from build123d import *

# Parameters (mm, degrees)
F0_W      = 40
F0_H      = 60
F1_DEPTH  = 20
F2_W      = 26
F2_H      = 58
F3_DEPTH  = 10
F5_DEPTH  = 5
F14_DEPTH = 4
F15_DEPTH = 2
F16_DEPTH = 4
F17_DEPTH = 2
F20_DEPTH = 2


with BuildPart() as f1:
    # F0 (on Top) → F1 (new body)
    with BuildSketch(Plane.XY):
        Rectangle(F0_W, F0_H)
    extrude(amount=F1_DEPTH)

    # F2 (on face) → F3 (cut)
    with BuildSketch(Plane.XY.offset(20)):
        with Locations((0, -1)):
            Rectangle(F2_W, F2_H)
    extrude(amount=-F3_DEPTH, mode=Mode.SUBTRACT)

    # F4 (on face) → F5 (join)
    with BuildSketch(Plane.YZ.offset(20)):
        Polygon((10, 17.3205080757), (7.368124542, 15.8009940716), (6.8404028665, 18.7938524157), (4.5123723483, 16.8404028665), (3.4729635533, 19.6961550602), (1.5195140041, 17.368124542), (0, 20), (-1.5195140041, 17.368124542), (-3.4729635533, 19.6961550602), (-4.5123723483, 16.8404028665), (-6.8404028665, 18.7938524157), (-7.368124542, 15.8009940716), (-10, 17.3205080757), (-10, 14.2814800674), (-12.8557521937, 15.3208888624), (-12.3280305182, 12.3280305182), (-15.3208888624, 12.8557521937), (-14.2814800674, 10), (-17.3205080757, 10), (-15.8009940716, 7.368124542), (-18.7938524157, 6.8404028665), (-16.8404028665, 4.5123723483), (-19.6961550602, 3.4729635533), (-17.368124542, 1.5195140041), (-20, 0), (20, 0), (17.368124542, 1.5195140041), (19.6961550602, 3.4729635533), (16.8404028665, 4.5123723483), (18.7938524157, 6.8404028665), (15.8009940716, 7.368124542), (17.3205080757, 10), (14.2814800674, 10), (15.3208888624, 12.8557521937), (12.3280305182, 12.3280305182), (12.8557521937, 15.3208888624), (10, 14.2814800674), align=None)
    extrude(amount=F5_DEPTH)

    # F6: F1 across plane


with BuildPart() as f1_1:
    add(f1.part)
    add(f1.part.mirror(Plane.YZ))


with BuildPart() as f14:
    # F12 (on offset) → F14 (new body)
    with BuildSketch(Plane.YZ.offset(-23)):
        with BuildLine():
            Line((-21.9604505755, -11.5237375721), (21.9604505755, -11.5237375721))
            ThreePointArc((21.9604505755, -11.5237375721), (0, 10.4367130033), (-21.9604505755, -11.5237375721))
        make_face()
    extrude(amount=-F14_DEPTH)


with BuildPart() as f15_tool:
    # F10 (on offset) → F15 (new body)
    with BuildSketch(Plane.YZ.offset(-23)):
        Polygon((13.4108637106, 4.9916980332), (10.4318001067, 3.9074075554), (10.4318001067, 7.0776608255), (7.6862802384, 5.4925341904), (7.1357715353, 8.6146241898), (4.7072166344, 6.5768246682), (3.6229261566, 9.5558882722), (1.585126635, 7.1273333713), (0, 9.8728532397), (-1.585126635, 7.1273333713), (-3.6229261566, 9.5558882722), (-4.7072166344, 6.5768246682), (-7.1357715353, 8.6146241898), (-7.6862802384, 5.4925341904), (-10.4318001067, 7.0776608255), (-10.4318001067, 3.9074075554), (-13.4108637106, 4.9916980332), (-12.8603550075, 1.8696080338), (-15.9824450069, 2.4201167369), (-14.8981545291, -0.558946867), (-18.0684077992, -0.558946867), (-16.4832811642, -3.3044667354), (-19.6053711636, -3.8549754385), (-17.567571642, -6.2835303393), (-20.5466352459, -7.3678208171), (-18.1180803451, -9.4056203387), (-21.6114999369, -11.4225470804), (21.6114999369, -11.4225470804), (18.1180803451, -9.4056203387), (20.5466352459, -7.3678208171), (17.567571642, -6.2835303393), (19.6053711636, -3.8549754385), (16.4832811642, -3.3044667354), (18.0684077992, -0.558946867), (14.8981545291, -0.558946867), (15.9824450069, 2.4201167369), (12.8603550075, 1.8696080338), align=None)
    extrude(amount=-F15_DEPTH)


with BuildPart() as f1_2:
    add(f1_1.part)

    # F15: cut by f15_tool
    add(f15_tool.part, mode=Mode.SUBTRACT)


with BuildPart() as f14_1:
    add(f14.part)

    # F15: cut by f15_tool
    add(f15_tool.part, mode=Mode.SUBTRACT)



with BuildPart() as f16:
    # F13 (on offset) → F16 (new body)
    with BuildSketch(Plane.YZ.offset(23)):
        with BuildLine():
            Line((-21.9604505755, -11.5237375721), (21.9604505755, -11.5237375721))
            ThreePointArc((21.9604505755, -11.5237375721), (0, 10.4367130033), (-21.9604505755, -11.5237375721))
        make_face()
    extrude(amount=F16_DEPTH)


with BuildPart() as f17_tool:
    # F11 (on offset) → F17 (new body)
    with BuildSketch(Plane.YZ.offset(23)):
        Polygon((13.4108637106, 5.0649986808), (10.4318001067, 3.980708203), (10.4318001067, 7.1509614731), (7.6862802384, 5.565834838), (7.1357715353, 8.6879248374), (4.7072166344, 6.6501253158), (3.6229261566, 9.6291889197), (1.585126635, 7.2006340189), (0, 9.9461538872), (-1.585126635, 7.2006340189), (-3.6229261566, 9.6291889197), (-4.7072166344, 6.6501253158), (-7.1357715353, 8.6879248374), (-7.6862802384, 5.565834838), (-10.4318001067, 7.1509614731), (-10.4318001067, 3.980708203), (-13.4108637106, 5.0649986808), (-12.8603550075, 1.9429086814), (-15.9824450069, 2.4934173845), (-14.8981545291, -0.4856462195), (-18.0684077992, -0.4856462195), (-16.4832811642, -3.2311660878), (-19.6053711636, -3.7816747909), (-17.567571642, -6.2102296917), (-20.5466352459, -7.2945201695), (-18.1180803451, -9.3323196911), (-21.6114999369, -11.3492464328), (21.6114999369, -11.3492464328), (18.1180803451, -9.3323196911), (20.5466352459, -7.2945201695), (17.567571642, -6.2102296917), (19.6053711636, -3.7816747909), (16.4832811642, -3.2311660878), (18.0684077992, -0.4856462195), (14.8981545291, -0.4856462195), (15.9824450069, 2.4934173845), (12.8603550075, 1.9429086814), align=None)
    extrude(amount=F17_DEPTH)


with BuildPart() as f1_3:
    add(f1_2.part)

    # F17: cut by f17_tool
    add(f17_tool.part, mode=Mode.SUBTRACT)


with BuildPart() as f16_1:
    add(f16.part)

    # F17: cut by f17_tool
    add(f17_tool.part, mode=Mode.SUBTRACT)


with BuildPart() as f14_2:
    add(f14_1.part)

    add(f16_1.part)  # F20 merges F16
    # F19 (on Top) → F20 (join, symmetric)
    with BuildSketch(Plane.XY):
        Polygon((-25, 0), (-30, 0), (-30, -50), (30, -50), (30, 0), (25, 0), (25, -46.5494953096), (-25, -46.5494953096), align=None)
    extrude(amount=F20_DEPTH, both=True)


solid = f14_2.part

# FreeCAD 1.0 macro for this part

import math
import FreeCAD as App
import Part
import Sketcher
Q = App.Units.Quantity

doc = App.newDocument("Part")
params = doc.addObject("Spreadsheet::Sheet", "Params")
for row, (alias, value) in enumerate([
    ("sketch1_width", "40 mm"),
    ("sketch1_height", "60 mm"),
    ("pad1_length", "20 mm"),
    ("sketch2_width", "26 mm"),
    ("sketch2_height", "58 mm"),
    ("pocket1_length", "10 mm"),
    ("sketch3_width", "40 mm"),
    ("pad2_length", "5 mm"),
    ("pad3_length", "4 mm"),
    ("pad4_length", "2 mm"),
    ("pad5_length", "4 mm"),
    ("pad6_length", "2 mm"),
    ("sketch8_width", "5 mm"),
    ("sketch8_width2", "60 mm"),
    ("pad7_length", "4 mm"),
], start=1):
    params.set(f"A{row}", alias)
    params.set(f"B{row}", "=" + value)
    params.setAlias(f"B{row}", alias)

body = doc.addObject("PartDesign::Body", "Body")

# Sketch on XY plane
sketch1 = body.newObject("Sketcher::SketchObject", "Sketch")
sketch1.AttachmentSupport = (doc.getObject("XY_Plane"), [""])
sketch1.MapMode = "FlatFace"
sketch1.addGeometry([
    Part.LineSegment(App.Vector(-20, 30, 0), App.Vector(-20, -30, 0)),
    Part.LineSegment(App.Vector(-20, -30, 0), App.Vector(20, -30, 0)),
    Part.LineSegment(App.Vector(20, -30, 0), App.Vector(20, 30, 0)),
    Part.LineSegment(App.Vector(20, 30, 0), App.Vector(-20, 30, 0)),
], False)
sketch1.addConstraint([
    Sketcher.Constraint("Coincident", 0, 2, 1, 1),
    Sketcher.Constraint("Coincident", 1, 2, 2, 1),
    Sketcher.Constraint("Coincident", 2, 2, 3, 1),
    Sketcher.Constraint("Coincident", 3, 2, 0, 1),
    Sketcher.Constraint("Vertical", 0),
    Sketcher.Constraint("Horizontal", 1),
    Sketcher.Constraint("Vertical", 2),
    Sketcher.Constraint("Horizontal", 3),
    Sketcher.Constraint("Symmetric", 0, 2, 2, 2, -1, 1),
    Sketcher.Constraint("DistanceX", 1, 1, 1, 2, Q("40 mm")),
    Sketcher.Constraint("DistanceY", 0, 2, 0, 1, Q("60 mm")),
])
sketch1.setExpression("Constraints[9]", "Params.sketch1_width")
sketch1.setExpression("Constraints[10]", "Params.sketch1_height")
pad1 = body.newObject("PartDesign::Pad", "Pad")
pad1.Profile = sketch1
pad1.setExpression("Length", "Params.pad1_length")

# Sketch on XY plane
sketch2 = body.newObject("Sketcher::SketchObject", "Sketch001")
sketch2.AttachmentSupport = (doc.getObject("XY_Plane"), [""])
sketch2.MapMode = "FlatFace"
sketch2.AttachmentOffset = App.Placement(App.Vector(0, 0, 20), App.Rotation())
sketch2.addGeometry([
    Part.LineSegment(App.Vector(-13, 28, 0), App.Vector(-13, -30, 0)),
    Part.LineSegment(App.Vector(-13, -30, 0), App.Vector(13, -30, 0)),
    Part.LineSegment(App.Vector(13, -30, 0), App.Vector(13, 28, 0)),
    Part.LineSegment(App.Vector(13, 28, 0), App.Vector(-13, 28, 0)),
], False)
sketch2.addConstraint([
    Sketcher.Constraint("Coincident", 0, 2, 1, 1),
    Sketcher.Constraint("Coincident", 1, 2, 2, 1),
    Sketcher.Constraint("Coincident", 2, 2, 3, 1),
    Sketcher.Constraint("Coincident", 3, 2, 0, 1),
    Sketcher.Constraint("Vertical", 0),
    Sketcher.Constraint("Horizontal", 1),
    Sketcher.Constraint("Vertical", 2),
    Sketcher.Constraint("Horizontal", 3),
    Sketcher.Constraint("DistanceX", 1, 1, 1, 2, Q("26 mm")),
    Sketcher.Constraint("DistanceY", 0, 2, 0, 1, Q("58 mm")),
    Sketcher.Constraint("DistanceX", 0, 2, -1, 1, Q("13 mm")),
    Sketcher.Constraint("DistanceY", 0, 2, -1, 1, Q("30 mm")),
])
sketch2.setExpression("Constraints[8]", "Params.sketch2_width")
sketch2.setExpression("Constraints[9]", "Params.sketch2_height")
pocket1 = body.newObject("PartDesign::Pocket", "Pocket")
pocket1.Profile = sketch2
pocket1.setExpression("Length", "Params.pocket1_length")

# Sketch on YZ plane
sketch3 = body.newObject("Sketcher::SketchObject", "Sketch002")
sketch3.AttachmentSupport = (doc.getObject("YZ_Plane"), [""])
sketch3.MapMode = "FlatFace"
sketch3.AttachmentOffset = App.Placement(App.Vector(0, 0, 20), App.Rotation())
sketch3.addGeometry([
    Part.LineSegment(App.Vector(10, 17.320508, 0), App.Vector(7.368125, 15.800994, 0)),  # 0
    Part.LineSegment(App.Vector(7.368125, 15.800994, 0), App.Vector(6.840403, 18.793852, 0)),  # 1
    Part.LineSegment(App.Vector(6.840403, 18.793852, 0), App.Vector(4.512372, 16.840403, 0)),  # 2
    Part.LineSegment(App.Vector(4.512372, 16.840403, 0), App.Vector(3.472964, 19.696155, 0)),  # 3
    Part.LineSegment(App.Vector(3.472964, 19.696155, 0), App.Vector(1.519514, 17.368125, 0)),  # 4
    Part.LineSegment(App.Vector(1.519514, 17.368125, 0), App.Vector(0, 20, 0)),  # 5
    Part.LineSegment(App.Vector(0, 20, 0), App.Vector(-1.519514, 17.368125, 0)),  # 6
    Part.LineSegment(App.Vector(-1.519514, 17.368125, 0), App.Vector(-3.472964, 19.696155, 0)),  # 7
    Part.LineSegment(App.Vector(-3.472964, 19.696155, 0), App.Vector(-4.512372, 16.840403, 0)),  # 8
    Part.LineSegment(App.Vector(-4.512372, 16.840403, 0), App.Vector(-6.840403, 18.793852, 0)),  # 9
    Part.LineSegment(App.Vector(-6.840403, 18.793852, 0), App.Vector(-7.368125, 15.800994, 0)),  # 10
    Part.LineSegment(App.Vector(-7.368125, 15.800994, 0), App.Vector(-10, 17.320508, 0)),  # 11
    Part.LineSegment(App.Vector(-10, 17.320508, 0), App.Vector(-10, 14.28148, 0)),  # 12
    Part.LineSegment(App.Vector(-10, 14.28148, 0), App.Vector(-12.855752, 15.320889, 0)),  # 13
    Part.LineSegment(App.Vector(-12.855752, 15.320889, 0), App.Vector(-12.328031, 12.328031, 0)),  # 14
    Part.LineSegment(App.Vector(-12.328031, 12.328031, 0), App.Vector(-15.320889, 12.855752, 0)),  # 15
    Part.LineSegment(App.Vector(-15.320889, 12.855752, 0), App.Vector(-14.28148, 10, 0)),  # 16
    Part.LineSegment(App.Vector(-14.28148, 10, 0), App.Vector(-17.320508, 10, 0)),  # 17
    Part.LineSegment(App.Vector(-17.320508, 10, 0), App.Vector(-15.800994, 7.368125, 0)),  # 18
    Part.LineSegment(App.Vector(-15.800994, 7.368125, 0), App.Vector(-18.793852, 6.840403, 0)),  # 19
    Part.LineSegment(App.Vector(-18.793852, 6.840403, 0), App.Vector(-16.840403, 4.512372, 0)),  # 20
    Part.LineSegment(App.Vector(-16.840403, 4.512372, 0), App.Vector(-19.696155, 3.472964, 0)),  # 21
    Part.LineSegment(App.Vector(-19.696155, 3.472964, 0), App.Vector(-17.368125, 1.519514, 0)),  # 22
    Part.LineSegment(App.Vector(-17.368125, 1.519514, 0), App.Vector(-20, 0, 0)),  # 23
    Part.LineSegment(App.Vector(-20, 0, 0), App.Vector(20, 0, 0)),  # 24
    Part.LineSegment(App.Vector(20, 0, 0), App.Vector(17.368125, 1.519514, 0)),  # 25
    Part.LineSegment(App.Vector(17.368125, 1.519514, 0), App.Vector(19.696155, 3.472964, 0)),  # 26
    Part.LineSegment(App.Vector(19.696155, 3.472964, 0), App.Vector(16.840403, 4.512372, 0)),  # 27
    Part.LineSegment(App.Vector(16.840403, 4.512372, 0), App.Vector(18.793852, 6.840403, 0)),  # 28
    Part.LineSegment(App.Vector(18.793852, 6.840403, 0), App.Vector(15.800994, 7.368125, 0)),  # 29
    Part.LineSegment(App.Vector(15.800994, 7.368125, 0), App.Vector(17.320508, 10, 0)),  # 30
    Part.LineSegment(App.Vector(17.320508, 10, 0), App.Vector(14.28148, 10, 0)),  # 31
    Part.LineSegment(App.Vector(14.28148, 10, 0), App.Vector(15.320889, 12.855752, 0)),  # 32
    Part.LineSegment(App.Vector(15.320889, 12.855752, 0), App.Vector(12.328031, 12.328031, 0)),  # 33
    Part.LineSegment(App.Vector(12.328031, 12.328031, 0), App.Vector(12.855752, 15.320889, 0)),  # 34
    Part.LineSegment(App.Vector(12.855752, 15.320889, 0), App.Vector(10, 14.28148, 0)),  # 35
    Part.LineSegment(App.Vector(10, 14.28148, 0), App.Vector(10, 17.320508, 0)),  # 36
], False)
sketch3.addConstraint([
    Sketcher.Constraint("Coincident", 0, 2, 1, 1),
    Sketcher.Constraint("Coincident", 1, 2, 2, 1),
    Sketcher.Constraint("Coincident", 2, 2, 3, 1),
    Sketcher.Constraint("Coincident", 3, 2, 4, 1),
    Sketcher.Constraint("Coincident", 4, 2, 5, 1),
    Sketcher.Constraint("Coincident", 5, 2, 6, 1),
    Sketcher.Constraint("Coincident", 6, 2, 7, 1),
    Sketcher.Constraint("Coincident", 7, 2, 8, 1),
    Sketcher.Constraint("Coincident", 8, 2, 9, 1),
    Sketcher.Constraint("Coincident", 9, 2, 10, 1),
    Sketcher.Constraint("Coincident", 10, 2, 11, 1),
    Sketcher.Constraint("Coincident", 11, 2, 12, 1),
    Sketcher.Constraint("Coincident", 12, 2, 13, 1),
    Sketcher.Constraint("Coincident", 13, 2, 14, 1),
    Sketcher.Constraint("Coincident", 14, 2, 15, 1),
    Sketcher.Constraint("Coincident", 15, 2, 16, 1),
    Sketcher.Constraint("Coincident", 16, 2, 17, 1),
    Sketcher.Constraint("Coincident", 17, 2, 18, 1),
    Sketcher.Constraint("Coincident", 18, 2, 19, 1),
    Sketcher.Constraint("Coincident", 19, 2, 20, 1),
    Sketcher.Constraint("Coincident", 20, 2, 21, 1),
    Sketcher.Constraint("Coincident", 21, 2, 22, 1),
    Sketcher.Constraint("Coincident", 22, 2, 23, 1),
    Sketcher.Constraint("Coincident", 23, 2, 24, 1),
    Sketcher.Constraint("Coincident", 24, 2, 25, 1),
    Sketcher.Constraint("Coincident", 25, 2, 26, 1),
    Sketcher.Constraint("Coincident", 26, 2, 27, 1),
    Sketcher.Constraint("Coincident", 27, 2, 28, 1),
    Sketcher.Constraint("Coincident", 28, 2, 29, 1),
    Sketcher.Constraint("Coincident", 29, 2, 30, 1),
    Sketcher.Constraint("Coincident", 30, 2, 31, 1),
    Sketcher.Constraint("Coincident", 31, 2, 32, 1),
    Sketcher.Constraint("Coincident", 32, 2, 33, 1),
    Sketcher.Constraint("Coincident", 33, 2, 34, 1),
    Sketcher.Constraint("Coincident", 34, 2, 35, 1),
    Sketcher.Constraint("Coincident", 35, 2, 36, 1),
    Sketcher.Constraint("Coincident", 36, 2, 0, 1),
    Sketcher.Constraint("Vertical", 12),
    Sketcher.Constraint("Horizontal", 17),
    Sketcher.Constraint("Horizontal", 24),
    Sketcher.Constraint("Horizontal", 31),
    Sketcher.Constraint("Vertical", 36),
    Sketcher.Constraint("Symmetric", 23, 2, 24, 2, -1, 1),
    Sketcher.Constraint("Symmetric", 4, 2, 6, 2, -2),
    Sketcher.Constraint("Symmetric", 3, 2, 7, 2, -2),
    Sketcher.Constraint("Symmetric", 2, 2, 8, 2, -2),
    Sketcher.Constraint("Symmetric", 1, 2, 9, 2, -2),
    Sketcher.Constraint("Symmetric", 0, 2, 10, 2, -2),
    Sketcher.Constraint("Symmetric", 22, 2, 25, 2, -2),
    Sketcher.Constraint("Symmetric", 21, 2, 26, 2, -2),
    Sketcher.Constraint("Symmetric", 20, 2, 27, 2, -2),
    Sketcher.Constraint("Symmetric", 19, 2, 28, 2, -2),
    Sketcher.Constraint("Symmetric", 18, 2, 29, 2, -2),
    Sketcher.Constraint("Symmetric", 17, 2, 30, 2, -2),
    Sketcher.Constraint("Symmetric", 15, 2, 32, 2, -2),
    Sketcher.Constraint("Symmetric", 14, 2, 33, 2, -2),
    Sketcher.Constraint("Symmetric", 13, 2, 34, 2, -2),
    Sketcher.Constraint("Symmetric", 12, 2, 35, 2, -2),
    Sketcher.Constraint("PointOnObject", 5, 2, -2),
    Sketcher.Constraint("Perpendicular", 0, 5),
    Sketcher.Constraint("Perpendicular", 2, 7),
    Sketcher.Constraint("Perpendicular", 6, 11),
    Sketcher.Constraint("Perpendicular", 8, 13),
    Sketcher.Constraint("Parallel", 1, 14),
    Sketcher.Constraint("Perpendicular", 10, 15),
    Sketcher.Constraint("Parallel", 3, 16),
    Sketcher.Constraint("Parallel", 5, 18),
    Sketcher.Constraint("Perpendicular", 14, 19),
    Sketcher.Constraint("Parallel", 7, 20),
    Sketcher.Constraint("Perpendicular", 16, 21),
    Sketcher.Constraint("Parallel", 9, 22),
    Sketcher.Constraint("Perpendicular", 18, 23),
    Sketcher.Constraint("Perpendicular", 27, 32),
    Sketcher.Constraint("Equal", 31, 12),
    Sketcher.Constraint("Equal", 0, 1),
    Sketcher.Constraint("Equal", 1, 2),
    Sketcher.Constraint("Equal", 2, 3),
    Sketcher.Constraint("Equal", 3, 4),
    Sketcher.Constraint("Equal", 4, 5),
    Sketcher.Constraint("Equal", 11, 13),
    Sketcher.Constraint("Equal", 13, 14),
    Sketcher.Constraint("Equal", 14, 15),
    Sketcher.Constraint("Equal", 15, 16),
    Sketcher.Constraint("Equal", 16, 18),
    Sketcher.Constraint("Equal", 18, 19),
    Sketcher.Constraint("Equal", 19, 20),
    Sketcher.Constraint("Equal", 20, 21),
    Sketcher.Constraint("Equal", 21, 22),
    Sketcher.Constraint("Equal", 22, 23),
    Sketcher.Constraint("DistanceX", 24, 1, 24, 2, Q("40 mm")),
    Sketcher.Constraint("Angle", 0, Q("-150 deg")),
    Sketcher.Constraint("Angle", 1, Q("100 deg")),
    Sketcher.Constraint("Angle", 2, Q("-140 deg")),
    Sketcher.Constraint("Angle", 3, Q("110 deg")),
    Sketcher.Constraint("DistanceX", 11, 2, -1, 1, Q("10 mm")),
])
sketch3.setExpression("Constraints[89]", "Params.sketch3_width")
pad2 = body.newObject("PartDesign::Pad", "Pad001")
pad2.Profile = sketch3
pad2.setExpression("Length", "Params.pad2_length")
body2 = doc.addObject("PartDesign::Body", "Body001")
doc.recompute()

body2.BaseFeature = body
doc.recompute()

mirroring = doc.addObject("Part::Mirroring", "Mirroring")
mirroring.Source = body
mirroring.Base = App.Vector(0, 0, 0)
mirroring.Normal = App.Vector(1, 0, 0)
body3 = doc.addObject("PartDesign::Body", "Body002")
body3.BaseFeature = mirroring
boolean = body2.newObject("PartDesign::Boolean", "Boolean")
boolean.Type = "Fuse"
boolean.addObjects([body3])
doc.recompute()
body4 = doc.addObject("PartDesign::Body", "Body003")

# Sketch on YZ plane
sketch4 = body4.newObject("Sketcher::SketchObject", "Sketch003")
sketch4.AttachmentSupport = (doc.getObject("YZ_Plane003"), [""])
sketch4.MapMode = "FlatFace"
sketch4.AttachmentOffset = App.Placement(App.Vector(0, 0, -23), App.Rotation())
sketch4.addGeometry([
    Part.LineSegment(App.Vector(-21.960451, -11.523738, 0), App.Vector(21.960451, -11.523738, 0)),
    Part.ArcOfCircle(Part.Circle(App.Vector(0, -11.523738, 0), App.Vector(0, 0, 1), 21.960451), math.radians(0), math.radians(180)),
], False)
sketch4.addConstraint([
    Sketcher.Constraint("Coincident", 0, 1, 1, 2),
    Sketcher.Constraint("Coincident", 1, 1, 0, 2),
    Sketcher.Constraint("Horizontal", 0),
    Sketcher.Constraint("PointOnObject", 1, 3, -2),
    Sketcher.Constraint("Horizontal", 1, 3, 0, 1),
    Sketcher.Constraint("Radius", 1, Q("21.960451 mm")),
    Sketcher.Constraint("DistanceY", 1, 3, -1, 1, Q("11.523738 mm")),
])
pad3 = body4.newObject("PartDesign::Pad", "Pad002")
pad3.Profile = sketch4
pad3.setExpression("Length", "Params.pad3_length")
pad3.Reversed = True
body5 = doc.addObject("PartDesign::Body", "Body004")

# Sketch on YZ plane
sketch5 = body5.newObject("Sketcher::SketchObject", "Sketch004")
sketch5.AttachmentSupport = (doc.getObject("YZ_Plane004"), [""])
sketch5.MapMode = "FlatFace"
sketch5.AttachmentOffset = App.Placement(App.Vector(0, 0, -23), App.Rotation())
sketch5.addGeometry([
    Part.LineSegment(App.Vector(13.410864, 4.991698, 0), App.Vector(10.4318, 3.907408, 0)),  # 0
    Part.LineSegment(App.Vector(10.4318, 3.907408, 0), App.Vector(10.4318, 7.077661, 0)),  # 1
    Part.LineSegment(App.Vector(10.4318, 7.077661, 0), App.Vector(7.68628, 5.492534, 0)),  # 2
    Part.LineSegment(App.Vector(7.68628, 5.492534, 0), App.Vector(7.135772, 8.614624, 0)),  # 3
    Part.LineSegment(App.Vector(7.135772, 8.614624, 0), App.Vector(4.707217, 6.576825, 0)),  # 4
    Part.LineSegment(App.Vector(4.707217, 6.576825, 0), App.Vector(3.622926, 9.555888, 0)),  # 5
    Part.LineSegment(App.Vector(3.622926, 9.555888, 0), App.Vector(1.585127, 7.127333, 0)),  # 6
    Part.LineSegment(App.Vector(1.585127, 7.127333, 0), App.Vector(0, 9.872853, 0)),  # 7
    Part.LineSegment(App.Vector(0, 9.872853, 0), App.Vector(-1.585127, 7.127333, 0)),  # 8
    Part.LineSegment(App.Vector(-1.585127, 7.127333, 0), App.Vector(-3.622926, 9.555888, 0)),  # 9
    Part.LineSegment(App.Vector(-3.622926, 9.555888, 0), App.Vector(-4.707217, 6.576825, 0)),  # 10
    Part.LineSegment(App.Vector(-4.707217, 6.576825, 0), App.Vector(-7.135772, 8.614624, 0)),  # 11
    Part.LineSegment(App.Vector(-7.135772, 8.614624, 0), App.Vector(-7.68628, 5.492534, 0)),  # 12
    Part.LineSegment(App.Vector(-7.68628, 5.492534, 0), App.Vector(-10.4318, 7.077661, 0)),  # 13
    Part.LineSegment(App.Vector(-10.4318, 7.077661, 0), App.Vector(-10.4318, 3.907408, 0)),  # 14
    Part.LineSegment(App.Vector(-10.4318, 3.907408, 0), App.Vector(-13.410864, 4.991698, 0)),  # 15
    Part.LineSegment(App.Vector(-13.410864, 4.991698, 0), App.Vector(-12.860355, 1.869608, 0)),  # 16
    Part.LineSegment(App.Vector(-12.860355, 1.869608, 0), App.Vector(-15.982445, 2.420117, 0)),  # 17
    Part.LineSegment(App.Vector(-15.982445, 2.420117, 0), App.Vector(-14.898155, -0.558947, 0)),  # 18
    Part.LineSegment(App.Vector(-14.898155, -0.558947, 0), App.Vector(-18.068408, -0.558947, 0)),  # 19
    Part.LineSegment(App.Vector(-18.068408, -0.558947, 0), App.Vector(-16.483281, -3.304467, 0)),  # 20
    Part.LineSegment(App.Vector(-16.483281, -3.304467, 0), App.Vector(-19.605371, -3.854975, 0)),  # 21
    Part.LineSegment(App.Vector(-19.605371, -3.854975, 0), App.Vector(-17.567572, -6.28353, 0)),  # 22
    Part.LineSegment(App.Vector(-17.567572, -6.28353, 0), App.Vector(-20.546635, -7.367821, 0)),  # 23
    Part.LineSegment(App.Vector(-20.546635, -7.367821, 0), App.Vector(-18.11808, -9.40562, 0)),  # 24
    Part.LineSegment(App.Vector(-18.11808, -9.40562, 0), App.Vector(-21.6115, -11.422547, 0)),  # 25
    Part.LineSegment(App.Vector(-21.6115, -11.422547, 0), App.Vector(21.6115, -11.422547, 0)),  # 26
    Part.LineSegment(App.Vector(21.6115, -11.422547, 0), App.Vector(18.11808, -9.40562, 0)),  # 27
    Part.LineSegment(App.Vector(18.11808, -9.40562, 0), App.Vector(20.546635, -7.367821, 0)),  # 28
    Part.LineSegment(App.Vector(20.546635, -7.367821, 0), App.Vector(17.567572, -6.28353, 0)),  # 29
    Part.LineSegment(App.Vector(17.567572, -6.28353, 0), App.Vector(19.605371, -3.854975, 0)),  # 30
    Part.LineSegment(App.Vector(19.605371, -3.854975, 0), App.Vector(16.483281, -3.304467, 0)),  # 31
    Part.LineSegment(App.Vector(16.483281, -3.304467, 0), App.Vector(18.068408, -0.558947, 0)),  # 32
    Part.LineSegment(App.Vector(18.068408, -0.558947, 0), App.Vector(14.898155, -0.558947, 0)),  # 33
    Part.LineSegment(App.Vector(14.898155, -0.558947, 0), App.Vector(15.982445, 2.420117, 0)),  # 34
    Part.LineSegment(App.Vector(15.982445, 2.420117, 0), App.Vector(12.860355, 1.869608, 0)),  # 35
    Part.LineSegment(App.Vector(12.860355, 1.869608, 0), App.Vector(13.410864, 4.991698, 0)),  # 36
], False)
sketch5.addConstraint([
    Sketcher.Constraint("Coincident", 0, 2, 1, 1),
    Sketcher.Constraint("Coincident", 1, 2, 2, 1),
    Sketcher.Constraint("Coincident", 2, 2, 3, 1),
    Sketcher.Constraint("Coincident", 3, 2, 4, 1),
    Sketcher.Constraint("Coincident", 4, 2, 5, 1),
    Sketcher.Constraint("Coincident", 5, 2, 6, 1),
    Sketcher.Constraint("Coincident", 6, 2, 7, 1),
    Sketcher.Constraint("Coincident", 7, 2, 8, 1),
    Sketcher.Constraint("Coincident", 8, 2, 9, 1),
    Sketcher.Constraint("Coincident", 9, 2, 10, 1),
    Sketcher.Constraint("Coincident", 10, 2, 11, 1),
    Sketcher.Constraint("Coincident", 11, 2, 12, 1),
    Sketcher.Constraint("Coincident", 12, 2, 13, 1),
    Sketcher.Constraint("Coincident", 13, 2, 14, 1),
    Sketcher.Constraint("Coincident", 14, 2, 15, 1),
    Sketcher.Constraint("Coincident", 15, 2, 16, 1),
    Sketcher.Constraint("Coincident", 16, 2, 17, 1),
    Sketcher.Constraint("Coincident", 17, 2, 18, 1),
    Sketcher.Constraint("Coincident", 18, 2, 19, 1),
    Sketcher.Constraint("Coincident", 19, 2, 20, 1),
    Sketcher.Constraint("Coincident", 20, 2, 21, 1),
    Sketcher.Constraint("Coincident", 21, 2, 22, 1),
    Sketcher.Constraint("Coincident", 22, 2, 23, 1),
    Sketcher.Constraint("Coincident", 23, 2, 24, 1),
    Sketcher.Constraint("Coincident", 24, 2, 25, 1),
    Sketcher.Constraint("Coincident", 25, 2, 26, 1),
    Sketcher.Constraint("Coincident", 26, 2, 27, 1),
    Sketcher.Constraint("Coincident", 27, 2, 28, 1),
    Sketcher.Constraint("Coincident", 28, 2, 29, 1),
    Sketcher.Constraint("Coincident", 29, 2, 30, 1),
    Sketcher.Constraint("Coincident", 30, 2, 31, 1),
    Sketcher.Constraint("Coincident", 31, 2, 32, 1),
    Sketcher.Constraint("Coincident", 32, 2, 33, 1),
    Sketcher.Constraint("Coincident", 33, 2, 34, 1),
    Sketcher.Constraint("Coincident", 34, 2, 35, 1),
    Sketcher.Constraint("Coincident", 35, 2, 36, 1),
    Sketcher.Constraint("Coincident", 36, 2, 0, 1),
    Sketcher.Constraint("Vertical", 1),
    Sketcher.Constraint("Vertical", 14),
    Sketcher.Constraint("Horizontal", 19),
    Sketcher.Constraint("Horizontal", 26),
    Sketcher.Constraint("Horizontal", 33),
    Sketcher.Constraint("Symmetric", 6, 2, 8, 2, -2),
    Sketcher.Constraint("Symmetric", 5, 2, 9, 2, -2),
    Sketcher.Constraint("Symmetric", 4, 2, 10, 2, -2),
    Sketcher.Constraint("Symmetric", 3, 2, 11, 2, -2),
    Sketcher.Constraint("Symmetric", 2, 2, 12, 2, -2),
    Sketcher.Constraint("Symmetric", 1, 2, 13, 2, -2),
    Sketcher.Constraint("Symmetric", 24, 2, 27, 2, -2),
    Sketcher.Constraint("Symmetric", 23, 2, 28, 2, -2),
    Sketcher.Constraint("Symmetric", 22, 2, 29, 2, -2),
    Sketcher.Constraint("Symmetric", 21, 2, 30, 2, -2),
    Sketcher.Constraint("Symmetric", 20, 2, 31, 2, -2),
    Sketcher.Constraint("Symmetric", 19, 2, 32, 2, -2),
    Sketcher.Constraint("Symmetric", 17, 2, 34, 2, -2),
    Sketcher.Constraint("Symmetric", 16, 2, 35, 2, -2),
    Sketcher.Constraint("Symmetric", 15, 2, 36, 2, -2),
    Sketcher.Constraint("PointOnObject", 7, 2, -2),
    Sketcher.Constraint("Perpendicular", 0, 5),
    Sketcher.Constraint("Perpendicular", 2, 7),
    Sketcher.Constraint("Perpendicular", 4, 9),
    Sketcher.Constraint("Perpendicular", 10, 15),
    Sketcher.Constraint("Parallel", 3, 16),
    Sketcher.Constraint("Perpendicular", 12, 17),
    Sketcher.Constraint("Parallel", 5, 18),
    Sketcher.Constraint("Parallel", 7, 20),
    Sketcher.Constraint("Perpendicular", 16, 21),
    Sketcher.Constraint("Parallel", 9, 22),
    Sketcher.Constraint("Perpendicular", 18, 23),
    Sketcher.Constraint("Parallel", 11, 24),
    Sketcher.Constraint("Perpendicular", 20, 25),
    Sketcher.Constraint("Parallel", 13, 27),
    Sketcher.Constraint("Perpendicular", 29, 34),
    Sketcher.Constraint("Equal", 33, 1),
    Sketcher.Constraint("Equal", 0, 2),
    Sketcher.Constraint("Equal", 2, 3),
    Sketcher.Constraint("Equal", 3, 4),
    Sketcher.Constraint("Equal", 4, 5),
    Sketcher.Constraint("Equal", 5, 6),
    Sketcher.Constraint("Equal", 6, 7),
    Sketcher.Constraint("Equal", 15, 16),
    Sketcher.Constraint("Equal", 16, 17),
    Sketcher.Constraint("Equal", 17, 18),
    Sketcher.Constraint("Equal", 18, 20),
    Sketcher.Constraint("Equal", 20, 21),
    Sketcher.Constraint("Equal", 21, 22),
    Sketcher.Constraint("Equal", 22, 23),
    Sketcher.Constraint("Equal", 23, 24),
    Sketcher.Constraint("Angle", 0, Q("-160 deg")),
    Sketcher.Constraint("Angle", 2, Q("-150 deg")),
    Sketcher.Constraint("Angle", 3, Q("100 deg")),
    Sketcher.Constraint("Angle", 4, Q("-140 deg")),
    Sketcher.Constraint("DistanceX", 26, 1, 26, 2, Q("43.223 mm")),
    Sketcher.Constraint("DistanceX", -1, 1, 0, 2, Q("10.4318 mm")),
    Sketcher.Constraint("DistanceY", -1, 1, 15, 2, Q("4.991698 mm")),
    Sketcher.Constraint("DistanceX", 2, 2, 27, 2, Q("10.4318 mm")),
])
pad4 = body5.newObject("PartDesign::Pad", "Pad003")
pad4.Profile = sketch5
pad4.setExpression("Length", "Params.pad4_length")
pad4.Reversed = True
doc.recompute()

body6 = doc.addObject("PartDesign::Body", "Body005")
body6.BaseFeature = body5
boolean2 = body2.newObject("PartDesign::Boolean", "Boolean001")
boolean2.Type = "Cut"
boolean2.addObjects([body6])
doc.recompute()

boolean3 = body4.newObject("PartDesign::Boolean", "Boolean002")
boolean3.Type = "Cut"
boolean3.addObjects([body5])
body7 = doc.addObject("PartDesign::Body", "Body006")

# Sketch on YZ plane
sketch6 = body7.newObject("Sketcher::SketchObject", "Sketch005")
sketch6.AttachmentSupport = (doc.getObject("YZ_Plane006"), [""])
sketch6.MapMode = "FlatFace"
sketch6.AttachmentOffset = App.Placement(App.Vector(0, 0, 23), App.Rotation())
sketch6.addGeometry([
    Part.LineSegment(App.Vector(-21.960451, -11.523738, 0), App.Vector(21.960451, -11.523738, 0)),
    Part.ArcOfCircle(Part.Circle(App.Vector(0, -11.523738, 0), App.Vector(0, 0, 1), 21.960451), math.radians(0), math.radians(180)),
], False)
sketch6.addConstraint([
    Sketcher.Constraint("Coincident", 0, 1, 1, 2),
    Sketcher.Constraint("Coincident", 1, 1, 0, 2),
    Sketcher.Constraint("Horizontal", 0),
    Sketcher.Constraint("PointOnObject", 1, 3, -2),
    Sketcher.Constraint("Horizontal", 1, 3, 0, 1),
    Sketcher.Constraint("Radius", 1, Q("21.960451 mm")),
    Sketcher.Constraint("DistanceY", 1, 3, -1, 1, Q("11.523738 mm")),
])
pad5 = body7.newObject("PartDesign::Pad", "Pad004")
pad5.Profile = sketch6
pad5.setExpression("Length", "Params.pad5_length")
body8 = doc.addObject("PartDesign::Body", "Body007")

# Sketch on YZ plane
sketch7 = body8.newObject("Sketcher::SketchObject", "Sketch006")
sketch7.AttachmentSupport = (doc.getObject("YZ_Plane007"), [""])
sketch7.MapMode = "FlatFace"
sketch7.AttachmentOffset = App.Placement(App.Vector(0, 0, 23), App.Rotation())
sketch7.addGeometry([
    Part.LineSegment(App.Vector(13.410864, 5.064999, 0), App.Vector(10.4318, 3.980708, 0)),  # 0
    Part.LineSegment(App.Vector(10.4318, 3.980708, 0), App.Vector(10.4318, 7.150961, 0)),  # 1
    Part.LineSegment(App.Vector(10.4318, 7.150961, 0), App.Vector(7.68628, 5.565835, 0)),  # 2
    Part.LineSegment(App.Vector(7.68628, 5.565835, 0), App.Vector(7.135772, 8.687925, 0)),  # 3
    Part.LineSegment(App.Vector(7.135772, 8.687925, 0), App.Vector(4.707217, 6.650125, 0)),  # 4
    Part.LineSegment(App.Vector(4.707217, 6.650125, 0), App.Vector(3.622926, 9.629189, 0)),  # 5
    Part.LineSegment(App.Vector(3.622926, 9.629189, 0), App.Vector(1.585127, 7.200634, 0)),  # 6
    Part.LineSegment(App.Vector(1.585127, 7.200634, 0), App.Vector(0, 9.946154, 0)),  # 7
    Part.LineSegment(App.Vector(0, 9.946154, 0), App.Vector(-1.585127, 7.200634, 0)),  # 8
    Part.LineSegment(App.Vector(-1.585127, 7.200634, 0), App.Vector(-3.622926, 9.629189, 0)),  # 9
    Part.LineSegment(App.Vector(-3.622926, 9.629189, 0), App.Vector(-4.707217, 6.650125, 0)),  # 10
    Part.LineSegment(App.Vector(-4.707217, 6.650125, 0), App.Vector(-7.135772, 8.687925, 0)),  # 11
    Part.LineSegment(App.Vector(-7.135772, 8.687925, 0), App.Vector(-7.68628, 5.565835, 0)),  # 12
    Part.LineSegment(App.Vector(-7.68628, 5.565835, 0), App.Vector(-10.4318, 7.150961, 0)),  # 13
    Part.LineSegment(App.Vector(-10.4318, 7.150961, 0), App.Vector(-10.4318, 3.980708, 0)),  # 14
    Part.LineSegment(App.Vector(-10.4318, 3.980708, 0), App.Vector(-13.410864, 5.064999, 0)),  # 15
    Part.LineSegment(App.Vector(-13.410864, 5.064999, 0), App.Vector(-12.860355, 1.942909, 0)),  # 16
    Part.LineSegment(App.Vector(-12.860355, 1.942909, 0), App.Vector(-15.982445, 2.493417, 0)),  # 17
    Part.LineSegment(App.Vector(-15.982445, 2.493417, 0), App.Vector(-14.898155, -0.485646, 0)),  # 18
    Part.LineSegment(App.Vector(-14.898155, -0.485646, 0), App.Vector(-18.068408, -0.485646, 0)),  # 19
    Part.LineSegment(App.Vector(-18.068408, -0.485646, 0), App.Vector(-16.483281, -3.231166, 0)),  # 20
    Part.LineSegment(App.Vector(-16.483281, -3.231166, 0), App.Vector(-19.605371, -3.781675, 0)),  # 21
    Part.LineSegment(App.Vector(-19.605371, -3.781675, 0), App.Vector(-17.567572, -6.21023, 0)),  # 22
    Part.LineSegment(App.Vector(-17.567572, -6.21023, 0), App.Vector(-20.546635, -7.29452, 0)),  # 23
    Part.LineSegment(App.Vector(-20.546635, -7.29452, 0), App.Vector(-18.11808, -9.33232, 0)),  # 24
    Part.LineSegment(App.Vector(-18.11808, -9.33232, 0), App.Vector(-21.6115, -11.349246, 0)),  # 25
    Part.LineSegment(App.Vector(-21.6115, -11.349246, 0), App.Vector(21.6115, -11.349246, 0)),  # 26
    Part.LineSegment(App.Vector(21.6115, -11.349246, 0), App.Vector(18.11808, -9.33232, 0)),  # 27
    Part.LineSegment(App.Vector(18.11808, -9.33232, 0), App.Vector(20.546635, -7.29452, 0)),  # 28
    Part.LineSegment(App.Vector(20.546635, -7.29452, 0), App.Vector(17.567572, -6.21023, 0)),  # 29
    Part.LineSegment(App.Vector(17.567572, -6.21023, 0), App.Vector(19.605371, -3.781675, 0)),  # 30
    Part.LineSegment(App.Vector(19.605371, -3.781675, 0), App.Vector(16.483281, -3.231166, 0)),  # 31
    Part.LineSegment(App.Vector(16.483281, -3.231166, 0), App.Vector(18.068408, -0.485646, 0)),  # 32
    Part.LineSegment(App.Vector(18.068408, -0.485646, 0), App.Vector(14.898155, -0.485646, 0)),  # 33
    Part.LineSegment(App.Vector(14.898155, -0.485646, 0), App.Vector(15.982445, 2.493417, 0)),  # 34
    Part.LineSegment(App.Vector(15.982445, 2.493417, 0), App.Vector(12.860355, 1.942909, 0)),  # 35
    Part.LineSegment(App.Vector(12.860355, 1.942909, 0), App.Vector(13.410864, 5.064999, 0)),  # 36
], False)
sketch7.addConstraint([
    Sketcher.Constraint("Coincident", 0, 2, 1, 1),
    Sketcher.Constraint("Coincident", 1, 2, 2, 1),
    Sketcher.Constraint("Coincident", 2, 2, 3, 1),
    Sketcher.Constraint("Coincident", 3, 2, 4, 1),
    Sketcher.Constraint("Coincident", 4, 2, 5, 1),
    Sketcher.Constraint("Coincident", 5, 2, 6, 1),
    Sketcher.Constraint("Coincident", 6, 2, 7, 1),
    Sketcher.Constraint("Coincident", 7, 2, 8, 1),
    Sketcher.Constraint("Coincident", 8, 2, 9, 1),
    Sketcher.Constraint("Coincident", 9, 2, 10, 1),
    Sketcher.Constraint("Coincident", 10, 2, 11, 1),
    Sketcher.Constraint("Coincident", 11, 2, 12, 1),
    Sketcher.Constraint("Coincident", 12, 2, 13, 1),
    Sketcher.Constraint("Coincident", 13, 2, 14, 1),
    Sketcher.Constraint("Coincident", 14, 2, 15, 1),
    Sketcher.Constraint("Coincident", 15, 2, 16, 1),
    Sketcher.Constraint("Coincident", 16, 2, 17, 1),
    Sketcher.Constraint("Coincident", 17, 2, 18, 1),
    Sketcher.Constraint("Coincident", 18, 2, 19, 1),
    Sketcher.Constraint("Coincident", 19, 2, 20, 1),
    Sketcher.Constraint("Coincident", 20, 2, 21, 1),
    Sketcher.Constraint("Coincident", 21, 2, 22, 1),
    Sketcher.Constraint("Coincident", 22, 2, 23, 1),
    Sketcher.Constraint("Coincident", 23, 2, 24, 1),
    Sketcher.Constraint("Coincident", 24, 2, 25, 1),
    Sketcher.Constraint("Coincident", 25, 2, 26, 1),
    Sketcher.Constraint("Coincident", 26, 2, 27, 1),
    Sketcher.Constraint("Coincident", 27, 2, 28, 1),
    Sketcher.Constraint("Coincident", 28, 2, 29, 1),
    Sketcher.Constraint("Coincident", 29, 2, 30, 1),
    Sketcher.Constraint("Coincident", 30, 2, 31, 1),
    Sketcher.Constraint("Coincident", 31, 2, 32, 1),
    Sketcher.Constraint("Coincident", 32, 2, 33, 1),
    Sketcher.Constraint("Coincident", 33, 2, 34, 1),
    Sketcher.Constraint("Coincident", 34, 2, 35, 1),
    Sketcher.Constraint("Coincident", 35, 2, 36, 1),
    Sketcher.Constraint("Coincident", 36, 2, 0, 1),
    Sketcher.Constraint("Vertical", 1),
    Sketcher.Constraint("Vertical", 14),
    Sketcher.Constraint("Horizontal", 19),
    Sketcher.Constraint("Horizontal", 26),
    Sketcher.Constraint("Horizontal", 33),
    Sketcher.Constraint("Symmetric", 6, 2, 8, 2, -2),
    Sketcher.Constraint("Symmetric", 5, 2, 9, 2, -2),
    Sketcher.Constraint("Symmetric", 4, 2, 10, 2, -2),
    Sketcher.Constraint("Symmetric", 3, 2, 11, 2, -2),
    Sketcher.Constraint("Symmetric", 2, 2, 12, 2, -2),
    Sketcher.Constraint("Symmetric", 1, 2, 13, 2, -2),
    Sketcher.Constraint("Symmetric", 24, 2, 27, 2, -2),
    Sketcher.Constraint("Symmetric", 23, 2, 28, 2, -2),
    Sketcher.Constraint("Symmetric", 22, 2, 29, 2, -2),
    Sketcher.Constraint("Symmetric", 21, 2, 30, 2, -2),
    Sketcher.Constraint("Symmetric", 20, 2, 31, 2, -2),
    Sketcher.Constraint("Symmetric", 19, 2, 32, 2, -2),
    Sketcher.Constraint("Symmetric", 17, 2, 34, 2, -2),
    Sketcher.Constraint("Symmetric", 16, 2, 35, 2, -2),
    Sketcher.Constraint("Symmetric", 15, 2, 36, 2, -2),
    Sketcher.Constraint("PointOnObject", 7, 2, -2),
    Sketcher.Constraint("Perpendicular", 0, 5),
    Sketcher.Constraint("Perpendicular", 2, 7),
    Sketcher.Constraint("Perpendicular", 4, 9),
    Sketcher.Constraint("Perpendicular", 10, 15),
    Sketcher.Constraint("Parallel", 3, 16),
    Sketcher.Constraint("Perpendicular", 12, 17),
    Sketcher.Constraint("Parallel", 5, 18),
    Sketcher.Constraint("Parallel", 7, 20),
    Sketcher.Constraint("Perpendicular", 16, 21),
    Sketcher.Constraint("Parallel", 9, 22),
    Sketcher.Constraint("Perpendicular", 18, 23),
    Sketcher.Constraint("Parallel", 11, 24),
    Sketcher.Constraint("Perpendicular", 20, 25),
    Sketcher.Constraint("Parallel", 13, 27),
    Sketcher.Constraint("Perpendicular", 29, 34),
    Sketcher.Constraint("Equal", 33, 1),
    Sketcher.Constraint("Equal", 0, 2),
    Sketcher.Constraint("Equal", 2, 3),
    Sketcher.Constraint("Equal", 3, 4),
    Sketcher.Constraint("Equal", 4, 5),
    Sketcher.Constraint("Equal", 5, 6),
    Sketcher.Constraint("Equal", 6, 7),
    Sketcher.Constraint("Equal", 15, 16),
    Sketcher.Constraint("Equal", 16, 17),
    Sketcher.Constraint("Equal", 17, 18),
    Sketcher.Constraint("Equal", 18, 20),
    Sketcher.Constraint("Equal", 20, 21),
    Sketcher.Constraint("Equal", 21, 22),
    Sketcher.Constraint("Equal", 22, 23),
    Sketcher.Constraint("Equal", 23, 24),
    Sketcher.Constraint("Angle", 0, Q("-160 deg")),
    Sketcher.Constraint("Angle", 2, Q("-150 deg")),
    Sketcher.Constraint("Angle", 3, Q("100 deg")),
    Sketcher.Constraint("Angle", 4, Q("-140 deg")),
    Sketcher.Constraint("DistanceX", 26, 1, 26, 2, Q("43.223 mm")),
    Sketcher.Constraint("DistanceY", -1, 1, 15, 2, Q("5.064999 mm")),
    Sketcher.Constraint("DistanceX", -1, 1, 0, 2, Q("10.4318 mm")),
    Sketcher.Constraint("DistanceX", 2, 2, 27, 2, Q("10.4318 mm")),
])
pad6 = body8.newObject("PartDesign::Pad", "Pad005")
pad6.Profile = sketch7
pad6.setExpression("Length", "Params.pad6_length")
doc.recompute()

body9 = doc.addObject("PartDesign::Body", "Body008")
body9.BaseFeature = body8
boolean4 = body2.newObject("PartDesign::Boolean", "Boolean003")
boolean4.Type = "Cut"
boolean4.addObjects([body9])
doc.recompute()

boolean5 = body7.newObject("PartDesign::Boolean", "Boolean004")
boolean5.Type = "Cut"
boolean5.addObjects([body8])
body4.AllowCompound = True
doc.recompute()

boolean6 = body4.newObject("PartDesign::Boolean", "Boolean005")
boolean6.Type = "Fuse"
boolean6.addObjects([body7])

# Sketch on XY plane
sketch8 = body4.newObject("Sketcher::SketchObject", "Sketch007")
sketch8.AttachmentSupport = (doc.getObject("XY_Plane003"), [""])
sketch8.MapMode = "FlatFace"
sketch8.addGeometry([
    Part.LineSegment(App.Vector(-25, 0, 0), App.Vector(-30, 0, 0)),  # 0
    Part.LineSegment(App.Vector(-30, 0, 0), App.Vector(-30, -50, 0)),  # 1
    Part.LineSegment(App.Vector(-30, -50, 0), App.Vector(30, -50, 0)),  # 2
    Part.LineSegment(App.Vector(30, -50, 0), App.Vector(30, 0, 0)),  # 3
    Part.LineSegment(App.Vector(30, 0, 0), App.Vector(25, 0, 0)),  # 4
    Part.LineSegment(App.Vector(25, 0, 0), App.Vector(25, -46.549495, 0)),  # 5
    Part.LineSegment(App.Vector(25, -46.549495, 0), App.Vector(-25, -46.549495, 0)),  # 6
    Part.LineSegment(App.Vector(-25, -46.549495, 0), App.Vector(-25, 0, 0)),  # 7
], False)
sketch8.addConstraint([
    Sketcher.Constraint("Coincident", 0, 2, 1, 1),
    Sketcher.Constraint("Coincident", 1, 2, 2, 1),
    Sketcher.Constraint("Coincident", 2, 2, 3, 1),
    Sketcher.Constraint("Coincident", 3, 2, 4, 1),
    Sketcher.Constraint("Coincident", 4, 2, 5, 1),
    Sketcher.Constraint("Coincident", 5, 2, 6, 1),
    Sketcher.Constraint("Coincident", 6, 2, 7, 1),
    Sketcher.Constraint("Coincident", 7, 2, 0, 1),
    Sketcher.Constraint("Horizontal", 0),
    Sketcher.Constraint("Vertical", 1),
    Sketcher.Constraint("Horizontal", 2),
    Sketcher.Constraint("Vertical", 3),
    Sketcher.Constraint("Horizontal", 4),
    Sketcher.Constraint("Vertical", 5),
    Sketcher.Constraint("Horizontal", 6),
    Sketcher.Constraint("Vertical", 7),
    Sketcher.Constraint("Symmetric", 0, 2, 3, 2, -1, 1),
    Sketcher.Constraint("Symmetric", 4, 2, 7, 2, -2),
    Sketcher.Constraint("Equal", 6, 1),
    Sketcher.Constraint("DistanceX", 0, 2, 0, 1, Q("5 mm")),
    Sketcher.Constraint("DistanceX", 2, 1, 2, 2, Q("60 mm")),
    Sketcher.Constraint("DistanceY", 5, 2, 5, 1, Q("46.549495 mm")),
])
sketch8.setExpression("Constraints[19]", "Params.sketch8_width")
sketch8.setExpression("Constraints[20]", "Params.sketch8_width2")
pad7 = body4.newObject("PartDesign::Pad", "Pad006")
pad7.Profile = sketch8
pad7.setExpression("Length", "Params.pad7_length")
pad7.Midplane = True
body2.Visibility = False
mirroring.Visibility = False

doc.recompute()
